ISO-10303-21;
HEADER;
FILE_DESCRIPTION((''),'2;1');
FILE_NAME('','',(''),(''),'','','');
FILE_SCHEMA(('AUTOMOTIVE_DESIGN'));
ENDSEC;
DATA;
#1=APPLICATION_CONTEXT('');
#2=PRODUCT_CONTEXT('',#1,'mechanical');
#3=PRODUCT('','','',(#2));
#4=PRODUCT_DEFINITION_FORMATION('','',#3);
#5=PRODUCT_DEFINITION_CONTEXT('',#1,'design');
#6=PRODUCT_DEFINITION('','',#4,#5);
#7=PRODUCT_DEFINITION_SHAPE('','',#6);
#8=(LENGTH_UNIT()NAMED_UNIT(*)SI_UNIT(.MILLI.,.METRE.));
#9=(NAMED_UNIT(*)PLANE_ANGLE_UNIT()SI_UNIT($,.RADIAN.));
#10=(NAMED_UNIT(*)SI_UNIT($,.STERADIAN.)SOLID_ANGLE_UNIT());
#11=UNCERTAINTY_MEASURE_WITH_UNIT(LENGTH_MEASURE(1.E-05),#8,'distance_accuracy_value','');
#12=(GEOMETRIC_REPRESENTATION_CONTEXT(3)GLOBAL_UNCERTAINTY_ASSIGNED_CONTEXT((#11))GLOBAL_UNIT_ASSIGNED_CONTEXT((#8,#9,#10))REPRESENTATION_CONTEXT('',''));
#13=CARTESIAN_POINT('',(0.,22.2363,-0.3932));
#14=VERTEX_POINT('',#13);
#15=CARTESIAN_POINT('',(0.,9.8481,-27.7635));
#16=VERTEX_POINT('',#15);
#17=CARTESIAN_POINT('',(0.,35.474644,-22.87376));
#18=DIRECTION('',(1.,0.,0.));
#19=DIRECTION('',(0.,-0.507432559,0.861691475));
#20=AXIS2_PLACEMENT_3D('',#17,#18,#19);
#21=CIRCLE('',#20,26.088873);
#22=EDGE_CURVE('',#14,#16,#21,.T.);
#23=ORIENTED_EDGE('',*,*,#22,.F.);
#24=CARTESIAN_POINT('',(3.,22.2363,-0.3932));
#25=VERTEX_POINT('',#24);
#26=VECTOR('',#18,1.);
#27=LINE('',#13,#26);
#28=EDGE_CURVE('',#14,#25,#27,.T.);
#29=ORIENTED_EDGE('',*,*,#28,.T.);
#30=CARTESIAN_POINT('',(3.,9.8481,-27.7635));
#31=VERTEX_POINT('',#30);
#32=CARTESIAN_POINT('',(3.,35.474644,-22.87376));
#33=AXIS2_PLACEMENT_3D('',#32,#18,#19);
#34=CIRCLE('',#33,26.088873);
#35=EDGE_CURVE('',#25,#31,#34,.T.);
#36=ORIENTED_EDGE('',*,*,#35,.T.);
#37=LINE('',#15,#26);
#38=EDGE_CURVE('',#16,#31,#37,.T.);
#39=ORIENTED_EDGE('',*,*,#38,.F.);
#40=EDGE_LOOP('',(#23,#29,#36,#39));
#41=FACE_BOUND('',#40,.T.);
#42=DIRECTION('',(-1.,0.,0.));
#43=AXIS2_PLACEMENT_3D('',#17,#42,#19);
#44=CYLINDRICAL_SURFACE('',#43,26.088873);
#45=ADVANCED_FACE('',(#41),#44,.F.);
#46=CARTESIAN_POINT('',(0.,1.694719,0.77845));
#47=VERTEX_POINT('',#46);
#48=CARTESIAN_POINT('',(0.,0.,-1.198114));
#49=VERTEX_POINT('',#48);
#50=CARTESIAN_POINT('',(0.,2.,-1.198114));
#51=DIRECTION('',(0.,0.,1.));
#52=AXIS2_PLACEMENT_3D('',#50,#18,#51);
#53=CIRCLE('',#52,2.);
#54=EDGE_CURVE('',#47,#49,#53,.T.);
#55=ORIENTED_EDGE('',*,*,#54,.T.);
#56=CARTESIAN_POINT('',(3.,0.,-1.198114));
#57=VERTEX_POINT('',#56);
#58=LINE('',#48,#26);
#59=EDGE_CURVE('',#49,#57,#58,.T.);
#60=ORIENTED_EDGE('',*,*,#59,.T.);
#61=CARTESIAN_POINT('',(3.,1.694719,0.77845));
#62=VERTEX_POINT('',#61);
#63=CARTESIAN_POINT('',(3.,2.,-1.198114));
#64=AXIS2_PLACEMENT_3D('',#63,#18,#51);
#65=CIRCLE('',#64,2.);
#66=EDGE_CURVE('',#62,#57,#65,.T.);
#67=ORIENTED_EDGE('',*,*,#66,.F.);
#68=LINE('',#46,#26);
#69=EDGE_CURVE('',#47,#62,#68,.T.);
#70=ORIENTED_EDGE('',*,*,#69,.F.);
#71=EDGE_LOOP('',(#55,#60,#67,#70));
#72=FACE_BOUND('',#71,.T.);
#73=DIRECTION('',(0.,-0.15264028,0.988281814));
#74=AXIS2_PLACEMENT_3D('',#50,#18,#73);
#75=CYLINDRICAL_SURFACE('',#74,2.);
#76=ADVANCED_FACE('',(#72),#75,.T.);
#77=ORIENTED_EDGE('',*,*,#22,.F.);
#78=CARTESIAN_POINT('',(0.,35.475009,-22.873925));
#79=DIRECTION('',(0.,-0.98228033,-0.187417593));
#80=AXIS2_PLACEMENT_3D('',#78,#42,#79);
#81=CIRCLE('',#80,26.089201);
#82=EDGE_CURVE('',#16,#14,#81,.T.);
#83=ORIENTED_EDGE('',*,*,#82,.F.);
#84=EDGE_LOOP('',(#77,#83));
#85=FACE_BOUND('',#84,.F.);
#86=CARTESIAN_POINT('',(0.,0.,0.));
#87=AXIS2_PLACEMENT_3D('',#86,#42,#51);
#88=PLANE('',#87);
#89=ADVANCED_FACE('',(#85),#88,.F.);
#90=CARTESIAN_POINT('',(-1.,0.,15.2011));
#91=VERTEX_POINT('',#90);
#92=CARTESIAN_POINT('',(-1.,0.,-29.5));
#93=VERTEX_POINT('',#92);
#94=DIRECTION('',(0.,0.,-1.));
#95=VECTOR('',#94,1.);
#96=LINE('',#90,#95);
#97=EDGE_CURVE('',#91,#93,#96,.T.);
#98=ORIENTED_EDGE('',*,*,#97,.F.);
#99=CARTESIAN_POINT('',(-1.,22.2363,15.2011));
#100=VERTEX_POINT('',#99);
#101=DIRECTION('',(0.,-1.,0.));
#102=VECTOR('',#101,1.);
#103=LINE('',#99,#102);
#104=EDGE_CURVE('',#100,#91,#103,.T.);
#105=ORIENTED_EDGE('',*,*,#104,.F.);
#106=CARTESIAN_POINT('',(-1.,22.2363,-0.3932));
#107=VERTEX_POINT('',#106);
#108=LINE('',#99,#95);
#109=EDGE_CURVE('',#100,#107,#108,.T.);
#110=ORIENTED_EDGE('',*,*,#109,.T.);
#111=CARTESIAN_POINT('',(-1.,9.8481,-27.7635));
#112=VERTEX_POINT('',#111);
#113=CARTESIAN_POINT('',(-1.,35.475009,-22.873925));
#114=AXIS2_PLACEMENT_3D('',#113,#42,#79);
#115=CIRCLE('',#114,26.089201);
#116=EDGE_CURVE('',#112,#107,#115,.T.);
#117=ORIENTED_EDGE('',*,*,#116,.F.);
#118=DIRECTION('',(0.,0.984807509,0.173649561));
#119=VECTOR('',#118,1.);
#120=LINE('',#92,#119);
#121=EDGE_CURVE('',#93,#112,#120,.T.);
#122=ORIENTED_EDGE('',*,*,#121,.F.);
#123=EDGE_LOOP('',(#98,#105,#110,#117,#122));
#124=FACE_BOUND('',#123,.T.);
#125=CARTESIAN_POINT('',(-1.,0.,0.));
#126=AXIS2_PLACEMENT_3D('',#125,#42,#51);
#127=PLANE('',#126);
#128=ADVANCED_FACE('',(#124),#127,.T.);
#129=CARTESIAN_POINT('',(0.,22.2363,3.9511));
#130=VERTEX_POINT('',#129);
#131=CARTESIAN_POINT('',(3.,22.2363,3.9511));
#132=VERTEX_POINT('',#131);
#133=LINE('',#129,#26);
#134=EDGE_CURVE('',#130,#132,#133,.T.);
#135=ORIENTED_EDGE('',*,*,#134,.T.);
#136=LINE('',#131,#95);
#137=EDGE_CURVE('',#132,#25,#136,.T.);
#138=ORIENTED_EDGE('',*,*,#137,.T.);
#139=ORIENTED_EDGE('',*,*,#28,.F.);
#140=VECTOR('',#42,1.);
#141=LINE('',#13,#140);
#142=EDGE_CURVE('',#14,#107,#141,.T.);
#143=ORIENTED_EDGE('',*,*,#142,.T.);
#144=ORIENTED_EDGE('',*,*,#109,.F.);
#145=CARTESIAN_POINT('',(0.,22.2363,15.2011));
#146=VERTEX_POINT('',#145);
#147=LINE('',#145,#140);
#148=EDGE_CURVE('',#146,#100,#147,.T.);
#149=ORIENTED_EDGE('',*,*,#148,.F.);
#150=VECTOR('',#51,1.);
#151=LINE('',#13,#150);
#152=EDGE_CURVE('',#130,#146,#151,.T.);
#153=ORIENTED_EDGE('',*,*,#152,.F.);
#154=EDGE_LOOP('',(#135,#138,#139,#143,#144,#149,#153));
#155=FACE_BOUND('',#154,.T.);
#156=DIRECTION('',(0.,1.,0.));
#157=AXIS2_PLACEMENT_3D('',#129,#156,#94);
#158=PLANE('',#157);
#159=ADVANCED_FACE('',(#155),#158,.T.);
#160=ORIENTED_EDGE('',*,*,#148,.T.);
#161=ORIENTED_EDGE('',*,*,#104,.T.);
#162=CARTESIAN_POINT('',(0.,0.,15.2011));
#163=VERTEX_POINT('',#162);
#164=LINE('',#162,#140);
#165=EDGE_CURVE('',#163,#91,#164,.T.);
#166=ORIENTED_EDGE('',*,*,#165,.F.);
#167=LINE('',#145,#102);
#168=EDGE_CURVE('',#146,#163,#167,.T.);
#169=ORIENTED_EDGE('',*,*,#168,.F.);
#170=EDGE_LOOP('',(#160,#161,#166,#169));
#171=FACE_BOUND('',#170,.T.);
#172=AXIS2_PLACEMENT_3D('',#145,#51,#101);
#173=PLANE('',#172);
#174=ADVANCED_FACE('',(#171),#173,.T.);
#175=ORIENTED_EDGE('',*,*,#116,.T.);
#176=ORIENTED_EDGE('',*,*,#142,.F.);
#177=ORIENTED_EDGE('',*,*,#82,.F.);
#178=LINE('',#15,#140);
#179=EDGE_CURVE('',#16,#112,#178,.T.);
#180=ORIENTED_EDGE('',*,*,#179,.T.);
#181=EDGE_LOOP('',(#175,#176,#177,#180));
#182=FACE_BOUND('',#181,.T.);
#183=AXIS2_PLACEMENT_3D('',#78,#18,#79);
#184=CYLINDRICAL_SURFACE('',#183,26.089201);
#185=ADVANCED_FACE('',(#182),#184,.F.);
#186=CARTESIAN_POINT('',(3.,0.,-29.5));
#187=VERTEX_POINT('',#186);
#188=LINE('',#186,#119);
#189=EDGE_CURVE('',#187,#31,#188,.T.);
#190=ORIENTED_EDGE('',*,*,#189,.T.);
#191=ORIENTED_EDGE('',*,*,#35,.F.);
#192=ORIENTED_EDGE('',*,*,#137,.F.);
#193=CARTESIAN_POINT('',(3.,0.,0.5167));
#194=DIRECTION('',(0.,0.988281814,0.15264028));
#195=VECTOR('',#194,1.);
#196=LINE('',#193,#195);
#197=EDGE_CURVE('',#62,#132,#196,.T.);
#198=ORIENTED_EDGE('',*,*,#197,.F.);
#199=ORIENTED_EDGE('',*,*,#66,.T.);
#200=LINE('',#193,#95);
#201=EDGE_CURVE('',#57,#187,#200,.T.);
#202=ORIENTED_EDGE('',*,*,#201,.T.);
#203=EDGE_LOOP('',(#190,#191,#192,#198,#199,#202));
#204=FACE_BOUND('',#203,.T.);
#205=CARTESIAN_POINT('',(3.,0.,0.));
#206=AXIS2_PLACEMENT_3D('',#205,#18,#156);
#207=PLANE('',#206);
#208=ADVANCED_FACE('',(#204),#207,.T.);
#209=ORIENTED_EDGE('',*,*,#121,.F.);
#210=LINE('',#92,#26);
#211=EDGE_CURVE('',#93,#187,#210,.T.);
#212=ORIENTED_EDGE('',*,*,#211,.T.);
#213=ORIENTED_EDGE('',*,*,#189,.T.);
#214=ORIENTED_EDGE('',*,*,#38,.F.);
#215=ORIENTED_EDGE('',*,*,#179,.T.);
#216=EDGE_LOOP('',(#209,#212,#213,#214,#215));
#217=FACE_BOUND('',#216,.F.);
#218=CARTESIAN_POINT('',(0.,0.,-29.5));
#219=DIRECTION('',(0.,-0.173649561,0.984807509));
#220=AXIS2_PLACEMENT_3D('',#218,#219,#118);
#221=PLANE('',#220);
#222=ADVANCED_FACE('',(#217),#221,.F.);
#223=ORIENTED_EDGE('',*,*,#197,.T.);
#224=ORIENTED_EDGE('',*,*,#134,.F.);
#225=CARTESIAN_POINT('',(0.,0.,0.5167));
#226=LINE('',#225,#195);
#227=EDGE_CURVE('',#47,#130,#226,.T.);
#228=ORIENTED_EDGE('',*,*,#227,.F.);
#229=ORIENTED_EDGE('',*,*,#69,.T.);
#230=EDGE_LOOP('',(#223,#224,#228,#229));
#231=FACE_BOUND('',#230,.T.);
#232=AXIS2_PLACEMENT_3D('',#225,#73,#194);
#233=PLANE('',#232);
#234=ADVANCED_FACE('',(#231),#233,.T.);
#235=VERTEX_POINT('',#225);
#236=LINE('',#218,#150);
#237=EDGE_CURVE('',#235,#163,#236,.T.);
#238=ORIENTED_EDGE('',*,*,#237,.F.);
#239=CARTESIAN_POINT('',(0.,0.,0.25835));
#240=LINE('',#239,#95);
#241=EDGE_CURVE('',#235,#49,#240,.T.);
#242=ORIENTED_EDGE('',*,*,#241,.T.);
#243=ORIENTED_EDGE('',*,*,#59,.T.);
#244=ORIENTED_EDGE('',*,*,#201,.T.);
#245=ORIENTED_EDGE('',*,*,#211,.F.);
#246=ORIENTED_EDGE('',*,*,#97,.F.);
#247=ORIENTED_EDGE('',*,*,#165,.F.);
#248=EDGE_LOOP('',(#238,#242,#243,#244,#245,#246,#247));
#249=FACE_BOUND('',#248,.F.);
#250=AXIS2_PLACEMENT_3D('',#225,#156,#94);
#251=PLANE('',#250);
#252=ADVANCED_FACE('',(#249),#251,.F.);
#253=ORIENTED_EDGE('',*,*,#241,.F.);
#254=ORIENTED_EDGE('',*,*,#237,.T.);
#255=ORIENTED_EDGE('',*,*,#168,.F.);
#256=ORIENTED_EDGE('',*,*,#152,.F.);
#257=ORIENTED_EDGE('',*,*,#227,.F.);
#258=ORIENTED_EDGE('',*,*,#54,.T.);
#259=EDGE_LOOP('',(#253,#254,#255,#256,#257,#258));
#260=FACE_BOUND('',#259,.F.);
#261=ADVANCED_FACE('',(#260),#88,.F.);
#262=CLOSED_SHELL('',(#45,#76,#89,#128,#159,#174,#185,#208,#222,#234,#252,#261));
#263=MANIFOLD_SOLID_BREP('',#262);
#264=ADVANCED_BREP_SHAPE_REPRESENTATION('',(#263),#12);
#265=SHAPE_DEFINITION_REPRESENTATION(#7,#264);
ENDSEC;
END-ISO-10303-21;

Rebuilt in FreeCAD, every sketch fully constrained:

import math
import FreeCAD as App
import Part
import Sketcher
Q = App.Units.Quantity


def edges_at(feature, points):
    """Names of the edges that pass closest to the given points."""
    edges = feature.Shape.Edges
    near = lambda p: min(range(len(edges)), key=lambda i: edges[i].distToShape(Part.Vertex(*p))[0])
    return sorted({f"Edge{near(p) + 1}" for p in points})

doc = App.newDocument("Part")
body = doc.addObject("PartDesign::Body", "Body")

# Sketch on YZ plane
sketch1 = doc.addObject("Sketcher::SketchObject", "Sketch")
body.addObject(sketch1)
sketch1.AttachmentSupport = (doc.YZ_Plane, [""])
sketch1.MapMode = "FlatFace"
sketch1.addGeometry(Part.LineSegment(App.Vector(22.2, 4, 0), App.Vector(0, 0.5, 0)), False)
sketch1.addGeometry(Part.LineSegment(App.Vector(0, 0.5, 0), App.Vector(0, -29.5, 0)), False)
sketch1.addGeometry(Part.LineSegment(App.Vector(0, -29.5, 0), App.Vector(9.8, -27.8, 0)), False)
sketch1.addGeometry(Part.ArcOfCircle(Part.Circle(App.Vector(35.5, -22.9, 0), App.Vector(0, 0, 1), 26.1), math.radians(120), math.radians(191)), False)
sketch1.addGeometry(Part.LineSegment(App.Vector(22.2, -0.4, 0), App.Vector(22.2, 4, 0)), False)
sketch1.addConstraint(Sketcher.Constraint("Coincident", 0, 2, 1, 1))
sketch1.addConstraint(Sketcher.Constraint("Coincident", 1, 2, 2, 1))
sketch1.addConstraint(Sketcher.Constraint("Coincident", 2, 2, 3, 2))
sketch1.addConstraint(Sketcher.Constraint("Coincident", 3, 1, 4, 1))
sketch1.addConstraint(Sketcher.Constraint("Coincident", 4, 2, 0, 1))
sketch1.addConstraint(Sketcher.Constraint("Vertical", 1))
sketch1.addConstraint(Sketcher.Constraint("Vertical", 4))
sketch1.addConstraint(Sketcher.Constraint("PointOnObject", 0, 2, -2))
sketch1.addConstraint(Sketcher.Constraint("Radius", 3, 26.089))
sketch1.addConstraint(Sketcher.Constraint("Distance", 0, 22.5))
sketch1.addConstraint(Sketcher.Constraint("Angle", 2, Q("10 deg")))
sketch1.addConstraint(Sketcher.Constraint("Distance", 2, 10.0))
sketch1.addConstraint(Sketcher.Constraint("DistanceY", 1, 2, 1, 1, 30.0167))
sketch1.addConstraint(Sketcher.Constraint("DistanceY", 1, 2, -1, 1, 29.5))
sketch1.addConstraint(Sketcher.Constraint("Angle", 0, Q("-171.22 deg")))
sketch1.addConstraint(Sketcher.Constraint("DistanceX", 3, 1, 3, 3, 13.2385))
pad1 = doc.addObject("PartDesign::Pad", "Pad")
body.addObject(pad1)
pad1.Profile = sketch1
pad1.Length = 3

# Sketch on YZ plane
sketch2 = doc.addObject("Sketcher::SketchObject", "Sketch001")
body.addObject(sketch2)
sketch2.AttachmentSupport = (doc.YZ_Plane, [""])
sketch2.MapMode = "FlatFace"
sketch2.addGeometry(Part.LineSegment(App.Vector(0, 15, 0), App.Vector(22, 15, 0)), False)
sketch2.addGeometry(Part.LineSegment(App.Vector(22, 15, 0), App.Vector(22, 0, 0)), False)
sketch2.addGeometry(Part.ArcOfCircle(Part.Circle(App.Vector(35, -23, 0), App.Vector(0, 0, 1), 26), math.radians(120), math.radians(191)), False)
sketch2.addGeometry(Part.LineSegment(App.Vector(10, -28, 0), App.Vector(0, -30, 0)), False)
sketch2.addGeometry(Part.LineSegment(App.Vector(0, -30, 0), App.Vector(0, 15, 0)), False)
sketch2.addConstraint(Sketcher.Constraint("Coincident", 0, 2, 1, 1))
sketch2.addConstraint(Sketcher.Constraint("Coincident", 1, 2, 2, 1))
sketch2.addConstraint(Sketcher.Constraint("Coincident", 2, 2, 3, 1))
sketch2.addConstraint(Sketcher.Constraint("Coincident", 3, 2, 4, 1))
sketch2.addConstraint(Sketcher.Constraint("Coincident", 4, 2, 0, 1))
sketch2.addConstraint(Sketcher.Constraint("Horizontal", 0))
sketch2.addConstraint(Sketcher.Constraint("Vertical", 1))
sketch2.addConstraint(Sketcher.Constraint("Vertical", 4))
sketch2.addConstraint(Sketcher.Constraint("PointOnObject", 3, 2, -2))
sketch2.addConstraint(Sketcher.Constraint("Angle", 3, Q("-170 deg")))
sketch2.addConstraint(Sketcher.Constraint("Distance", 3, 10.0))
sketch2.addConstraint(Sketcher.Constraint("Radius", 2, 26.089))
sketch2.addConstraint(Sketcher.Constraint("DistanceY", 3, 2, -1, 1, 29.5))
sketch2.addConstraint(Sketcher.Constraint("DistanceY", 4, 1, 4, 2, 44.701))
sketch2.addConstraint(Sketcher.Constraint("DistanceX", 0, 1, 0, 2, 22.2363))
sketch2.addConstraint(Sketcher.Constraint("DistanceY", 1, 2, 1, 1, 15.5943))
pad2 = doc.addObject("PartDesign::Pad", "Pad001")
body.addObject(pad2)
pad2.Profile = sketch2
pad2.Length = 1
pad2.Reversed = True
doc.recompute()

fillet = doc.addObject("PartDesign::Fillet", "Fillet")
body.addObject(fillet)
fillet.Base = (pad2, edges_at(pad2, [(1.5, 0, 0.517)]))
fillet.Radius = 2

doc.recompute()
